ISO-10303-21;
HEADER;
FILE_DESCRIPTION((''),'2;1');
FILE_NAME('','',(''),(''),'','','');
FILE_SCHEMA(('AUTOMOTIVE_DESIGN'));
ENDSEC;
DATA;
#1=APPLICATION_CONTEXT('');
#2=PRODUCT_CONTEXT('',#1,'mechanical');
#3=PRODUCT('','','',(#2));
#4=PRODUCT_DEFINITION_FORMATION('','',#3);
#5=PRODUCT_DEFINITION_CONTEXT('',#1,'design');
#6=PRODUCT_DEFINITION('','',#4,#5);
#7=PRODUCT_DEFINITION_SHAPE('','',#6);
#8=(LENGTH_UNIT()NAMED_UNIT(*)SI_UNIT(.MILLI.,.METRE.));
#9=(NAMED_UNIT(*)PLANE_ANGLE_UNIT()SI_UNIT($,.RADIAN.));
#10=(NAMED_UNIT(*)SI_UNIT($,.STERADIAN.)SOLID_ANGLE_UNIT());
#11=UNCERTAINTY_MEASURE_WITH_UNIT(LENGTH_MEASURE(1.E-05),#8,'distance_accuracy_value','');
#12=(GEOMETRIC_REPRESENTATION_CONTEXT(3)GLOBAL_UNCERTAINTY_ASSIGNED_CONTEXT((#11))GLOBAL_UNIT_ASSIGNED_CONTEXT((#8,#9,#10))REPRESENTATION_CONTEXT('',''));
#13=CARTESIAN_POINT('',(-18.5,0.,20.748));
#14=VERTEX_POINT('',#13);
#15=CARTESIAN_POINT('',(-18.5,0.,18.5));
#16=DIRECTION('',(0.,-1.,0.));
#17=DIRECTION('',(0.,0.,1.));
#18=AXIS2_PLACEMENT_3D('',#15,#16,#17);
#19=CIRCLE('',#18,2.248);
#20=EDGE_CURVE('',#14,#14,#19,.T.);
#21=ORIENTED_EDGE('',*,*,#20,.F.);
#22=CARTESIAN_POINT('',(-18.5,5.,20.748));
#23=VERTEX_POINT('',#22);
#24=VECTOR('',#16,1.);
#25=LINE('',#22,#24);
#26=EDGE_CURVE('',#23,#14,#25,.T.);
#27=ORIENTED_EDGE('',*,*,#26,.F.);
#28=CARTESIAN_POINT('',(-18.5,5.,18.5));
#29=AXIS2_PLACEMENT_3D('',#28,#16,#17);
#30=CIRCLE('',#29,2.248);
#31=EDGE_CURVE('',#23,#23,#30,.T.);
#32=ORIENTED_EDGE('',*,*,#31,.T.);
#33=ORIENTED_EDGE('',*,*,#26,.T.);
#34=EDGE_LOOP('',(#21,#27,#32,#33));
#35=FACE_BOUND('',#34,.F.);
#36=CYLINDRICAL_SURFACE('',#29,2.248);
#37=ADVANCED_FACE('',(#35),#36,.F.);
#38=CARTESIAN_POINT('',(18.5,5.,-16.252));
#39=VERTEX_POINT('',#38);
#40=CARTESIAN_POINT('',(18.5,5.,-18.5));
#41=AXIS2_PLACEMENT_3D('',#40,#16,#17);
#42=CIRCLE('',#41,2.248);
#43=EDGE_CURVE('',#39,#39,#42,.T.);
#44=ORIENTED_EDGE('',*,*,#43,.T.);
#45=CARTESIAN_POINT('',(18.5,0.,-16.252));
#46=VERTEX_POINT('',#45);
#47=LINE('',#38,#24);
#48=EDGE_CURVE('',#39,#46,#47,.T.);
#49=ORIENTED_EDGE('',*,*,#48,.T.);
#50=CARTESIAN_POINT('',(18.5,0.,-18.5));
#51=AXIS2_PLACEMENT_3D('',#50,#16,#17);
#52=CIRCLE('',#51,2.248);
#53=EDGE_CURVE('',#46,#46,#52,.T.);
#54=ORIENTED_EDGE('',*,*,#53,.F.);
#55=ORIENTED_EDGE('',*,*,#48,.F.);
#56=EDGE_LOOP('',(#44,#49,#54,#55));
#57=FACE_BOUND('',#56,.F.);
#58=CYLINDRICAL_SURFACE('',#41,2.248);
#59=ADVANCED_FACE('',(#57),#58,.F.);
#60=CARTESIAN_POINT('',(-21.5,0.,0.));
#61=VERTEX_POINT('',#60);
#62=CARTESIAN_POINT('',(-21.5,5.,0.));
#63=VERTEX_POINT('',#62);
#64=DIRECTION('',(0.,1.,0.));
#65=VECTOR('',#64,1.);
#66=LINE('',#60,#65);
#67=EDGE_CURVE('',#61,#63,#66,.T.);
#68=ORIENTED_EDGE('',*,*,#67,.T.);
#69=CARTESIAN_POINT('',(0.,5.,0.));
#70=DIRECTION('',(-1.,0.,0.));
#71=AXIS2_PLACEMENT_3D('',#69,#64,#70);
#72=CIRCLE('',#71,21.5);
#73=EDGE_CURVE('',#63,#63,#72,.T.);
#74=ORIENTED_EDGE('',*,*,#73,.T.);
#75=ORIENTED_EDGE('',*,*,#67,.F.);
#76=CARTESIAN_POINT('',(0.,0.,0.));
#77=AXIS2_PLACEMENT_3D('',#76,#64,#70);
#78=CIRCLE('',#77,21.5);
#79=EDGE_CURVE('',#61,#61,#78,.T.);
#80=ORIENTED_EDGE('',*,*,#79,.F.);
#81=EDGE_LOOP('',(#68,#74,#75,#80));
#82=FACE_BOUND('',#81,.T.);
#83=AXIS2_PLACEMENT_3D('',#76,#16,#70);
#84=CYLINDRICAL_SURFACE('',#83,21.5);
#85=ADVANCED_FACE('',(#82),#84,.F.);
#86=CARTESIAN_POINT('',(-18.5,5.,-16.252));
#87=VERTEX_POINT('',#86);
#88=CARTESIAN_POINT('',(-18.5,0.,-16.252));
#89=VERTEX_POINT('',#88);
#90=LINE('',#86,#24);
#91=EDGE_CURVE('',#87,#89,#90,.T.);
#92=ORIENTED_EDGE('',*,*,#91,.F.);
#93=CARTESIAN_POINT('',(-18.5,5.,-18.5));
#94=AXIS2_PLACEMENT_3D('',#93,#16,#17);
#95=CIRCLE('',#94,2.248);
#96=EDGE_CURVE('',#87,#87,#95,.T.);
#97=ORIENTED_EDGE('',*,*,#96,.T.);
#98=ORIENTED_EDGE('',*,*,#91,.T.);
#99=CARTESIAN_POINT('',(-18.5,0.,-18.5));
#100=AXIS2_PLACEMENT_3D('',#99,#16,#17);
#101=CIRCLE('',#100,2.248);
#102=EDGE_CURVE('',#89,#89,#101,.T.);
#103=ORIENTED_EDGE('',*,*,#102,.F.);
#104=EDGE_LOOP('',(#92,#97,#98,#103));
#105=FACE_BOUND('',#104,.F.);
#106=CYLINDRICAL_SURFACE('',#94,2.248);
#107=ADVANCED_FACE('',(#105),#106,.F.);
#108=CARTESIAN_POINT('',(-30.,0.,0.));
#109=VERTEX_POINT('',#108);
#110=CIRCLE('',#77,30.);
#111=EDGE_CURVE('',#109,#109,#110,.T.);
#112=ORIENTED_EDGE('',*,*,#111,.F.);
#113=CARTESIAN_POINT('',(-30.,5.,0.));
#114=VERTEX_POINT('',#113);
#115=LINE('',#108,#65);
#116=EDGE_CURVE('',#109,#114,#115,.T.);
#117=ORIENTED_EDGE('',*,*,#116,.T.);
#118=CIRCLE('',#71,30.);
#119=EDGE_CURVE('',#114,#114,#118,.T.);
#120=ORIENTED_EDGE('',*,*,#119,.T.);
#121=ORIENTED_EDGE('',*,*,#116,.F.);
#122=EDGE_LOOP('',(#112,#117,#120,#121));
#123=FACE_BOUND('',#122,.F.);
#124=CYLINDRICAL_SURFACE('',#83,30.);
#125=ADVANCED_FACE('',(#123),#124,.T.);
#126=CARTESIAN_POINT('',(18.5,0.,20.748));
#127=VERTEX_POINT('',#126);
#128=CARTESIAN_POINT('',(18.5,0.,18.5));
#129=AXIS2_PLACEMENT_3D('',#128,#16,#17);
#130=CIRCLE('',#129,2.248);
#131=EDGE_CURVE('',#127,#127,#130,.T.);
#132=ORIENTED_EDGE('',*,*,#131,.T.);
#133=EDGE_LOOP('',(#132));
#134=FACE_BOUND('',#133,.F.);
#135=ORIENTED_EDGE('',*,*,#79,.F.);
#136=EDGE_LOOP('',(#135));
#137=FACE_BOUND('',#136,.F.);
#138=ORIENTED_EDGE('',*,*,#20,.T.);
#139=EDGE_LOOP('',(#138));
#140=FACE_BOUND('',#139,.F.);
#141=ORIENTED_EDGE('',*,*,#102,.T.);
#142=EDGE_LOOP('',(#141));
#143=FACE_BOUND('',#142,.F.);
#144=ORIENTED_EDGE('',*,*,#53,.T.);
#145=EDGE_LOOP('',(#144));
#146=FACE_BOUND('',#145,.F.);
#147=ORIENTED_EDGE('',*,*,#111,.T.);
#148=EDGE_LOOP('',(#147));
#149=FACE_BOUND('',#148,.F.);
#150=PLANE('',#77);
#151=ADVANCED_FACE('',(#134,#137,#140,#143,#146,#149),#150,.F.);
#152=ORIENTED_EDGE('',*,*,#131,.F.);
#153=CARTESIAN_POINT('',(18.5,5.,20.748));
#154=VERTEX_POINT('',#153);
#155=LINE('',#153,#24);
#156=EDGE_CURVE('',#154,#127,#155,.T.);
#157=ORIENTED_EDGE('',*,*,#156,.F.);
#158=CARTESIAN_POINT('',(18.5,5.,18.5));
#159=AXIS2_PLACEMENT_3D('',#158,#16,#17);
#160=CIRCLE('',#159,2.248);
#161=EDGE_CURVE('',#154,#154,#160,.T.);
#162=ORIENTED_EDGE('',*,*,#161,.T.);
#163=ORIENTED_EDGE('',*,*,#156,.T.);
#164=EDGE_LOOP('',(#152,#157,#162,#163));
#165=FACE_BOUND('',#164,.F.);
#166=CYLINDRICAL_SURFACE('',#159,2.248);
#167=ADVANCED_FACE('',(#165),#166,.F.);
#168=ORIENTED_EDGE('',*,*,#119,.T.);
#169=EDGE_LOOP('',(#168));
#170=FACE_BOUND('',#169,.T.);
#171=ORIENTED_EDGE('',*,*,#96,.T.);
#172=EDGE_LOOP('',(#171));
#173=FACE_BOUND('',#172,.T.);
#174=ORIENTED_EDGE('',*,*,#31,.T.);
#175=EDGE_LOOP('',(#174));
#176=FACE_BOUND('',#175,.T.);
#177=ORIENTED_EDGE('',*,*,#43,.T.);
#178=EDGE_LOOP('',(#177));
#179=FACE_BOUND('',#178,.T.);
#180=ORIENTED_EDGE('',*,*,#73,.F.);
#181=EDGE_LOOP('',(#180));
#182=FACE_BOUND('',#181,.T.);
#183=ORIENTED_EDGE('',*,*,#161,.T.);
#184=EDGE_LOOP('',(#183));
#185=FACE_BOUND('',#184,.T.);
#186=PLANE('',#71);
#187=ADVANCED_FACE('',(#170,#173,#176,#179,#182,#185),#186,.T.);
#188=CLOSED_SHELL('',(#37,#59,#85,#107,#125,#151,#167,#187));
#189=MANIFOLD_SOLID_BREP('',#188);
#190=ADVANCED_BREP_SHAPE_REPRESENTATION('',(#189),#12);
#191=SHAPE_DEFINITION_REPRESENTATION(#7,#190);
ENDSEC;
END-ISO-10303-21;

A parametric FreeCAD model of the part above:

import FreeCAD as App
import Part
import Sketcher

doc = App.newDocument("Part")
body = doc.addObject("PartDesign::Body", "Body")

sketch1 = body.newObject("Sketcher::SketchObject", "Sketch")
sketch1.AttachmentSupport = (doc.getObject("XZ_Plane"), [""])
sketch1.MapMode = "FlatFace"
sketch1.addGeometry(Part.Circle(App.Vector(0, 0, 0), App.Vector(0, 0, 1), 30), False)
sketch1.addGeometry(Part.Circle(App.Vector(0, 0, 0), App.Vector(0, 0, 1), 22), False)
sketch1.addConstraint(Sketcher.Constraint("Coincident", 0, 3, -1, 1))
sketch1.addConstraint(Sketcher.Constraint("Coincident", 1, 3, -1, 1))
sketch1.addConstraint(Sketcher.Constraint("Diameter", 0, 60.0))
sketch1.addConstraint(Sketcher.Constraint("Diameter", 1, 43.0))
pad1 = body.newObject("PartDesign::Pad", "Pad")
pad1.Profile = sketch1
pad1.Length = 5
pad1.Reversed = True

sketch2 = body.newObject("Sketcher::SketchObject", "Sketch001")
sketch2.AttachmentSupport = (doc.getObject("XZ_Plane"), [""])
sketch2.MapMode = "FlatFace"
sketch2.AttachmentOffset = App.Placement(App.Vector(0, 0, -5), App.Rotation())
sketch2.addGeometry(Part.Circle(App.Vector(-18.5, 18.5, 0), App.Vector(0, 0, 1), 2.2), False)
sketch2.addGeometry(Part.Circle(App.Vector(-18.5, -18.5, 0), App.Vector(0, 0, 1), 2.2), False)
sketch2.addGeometry(Part.Circle(App.Vector(18.5, -18.5, 0), App.Vector(0, 0, 1), 2.2), False)
sketch2.addGeometry(Part.Circle(App.Vector(18.5, 18.5, 0), App.Vector(0, 0, 1), 2.2), False)
sketch2.addConstraint(Sketcher.Constraint("Equal", 0, 1))
sketch2.addConstraint(Sketcher.Constraint("Equal", 1, 2))
sketch2.addConstraint(Sketcher.Constraint("Equal", 2, 3))
sketch2.addConstraint(Sketcher.Constraint("Symmetric", 0, 3, 2, 3, -1, 1))
sketch2.addConstraint(Sketcher.Constraint("Symmetric", 1, 3, 3, 3, -1, 1))
sketch2.addConstraint(Sketcher.Constraint("Symmetric", 1, 3, 2, 3, -2))
sketch2.addConstraint(Sketcher.Constraint("Diameter", 0, 4.496))
sketch2.addConstraint(Sketcher.Constraint("DistanceY", 1, 3, 0, 3, 37.0))
sketch2.addConstraint(Sketcher.Constraint("DistanceX", 1, 3, 2, 3, 37.0))
doc.recompute()
hole = body.newObject("PartDesign::Hole", "Hole")
hole.Profile = sketch2
hole.ThreadType = "None"
hole.Diameter = 4.496
hole.DepthType = "Dimension"
hole.Depth = 6
hole.DrillPoint = "Flat"
hole.Reversed = True

doc.recompute()
